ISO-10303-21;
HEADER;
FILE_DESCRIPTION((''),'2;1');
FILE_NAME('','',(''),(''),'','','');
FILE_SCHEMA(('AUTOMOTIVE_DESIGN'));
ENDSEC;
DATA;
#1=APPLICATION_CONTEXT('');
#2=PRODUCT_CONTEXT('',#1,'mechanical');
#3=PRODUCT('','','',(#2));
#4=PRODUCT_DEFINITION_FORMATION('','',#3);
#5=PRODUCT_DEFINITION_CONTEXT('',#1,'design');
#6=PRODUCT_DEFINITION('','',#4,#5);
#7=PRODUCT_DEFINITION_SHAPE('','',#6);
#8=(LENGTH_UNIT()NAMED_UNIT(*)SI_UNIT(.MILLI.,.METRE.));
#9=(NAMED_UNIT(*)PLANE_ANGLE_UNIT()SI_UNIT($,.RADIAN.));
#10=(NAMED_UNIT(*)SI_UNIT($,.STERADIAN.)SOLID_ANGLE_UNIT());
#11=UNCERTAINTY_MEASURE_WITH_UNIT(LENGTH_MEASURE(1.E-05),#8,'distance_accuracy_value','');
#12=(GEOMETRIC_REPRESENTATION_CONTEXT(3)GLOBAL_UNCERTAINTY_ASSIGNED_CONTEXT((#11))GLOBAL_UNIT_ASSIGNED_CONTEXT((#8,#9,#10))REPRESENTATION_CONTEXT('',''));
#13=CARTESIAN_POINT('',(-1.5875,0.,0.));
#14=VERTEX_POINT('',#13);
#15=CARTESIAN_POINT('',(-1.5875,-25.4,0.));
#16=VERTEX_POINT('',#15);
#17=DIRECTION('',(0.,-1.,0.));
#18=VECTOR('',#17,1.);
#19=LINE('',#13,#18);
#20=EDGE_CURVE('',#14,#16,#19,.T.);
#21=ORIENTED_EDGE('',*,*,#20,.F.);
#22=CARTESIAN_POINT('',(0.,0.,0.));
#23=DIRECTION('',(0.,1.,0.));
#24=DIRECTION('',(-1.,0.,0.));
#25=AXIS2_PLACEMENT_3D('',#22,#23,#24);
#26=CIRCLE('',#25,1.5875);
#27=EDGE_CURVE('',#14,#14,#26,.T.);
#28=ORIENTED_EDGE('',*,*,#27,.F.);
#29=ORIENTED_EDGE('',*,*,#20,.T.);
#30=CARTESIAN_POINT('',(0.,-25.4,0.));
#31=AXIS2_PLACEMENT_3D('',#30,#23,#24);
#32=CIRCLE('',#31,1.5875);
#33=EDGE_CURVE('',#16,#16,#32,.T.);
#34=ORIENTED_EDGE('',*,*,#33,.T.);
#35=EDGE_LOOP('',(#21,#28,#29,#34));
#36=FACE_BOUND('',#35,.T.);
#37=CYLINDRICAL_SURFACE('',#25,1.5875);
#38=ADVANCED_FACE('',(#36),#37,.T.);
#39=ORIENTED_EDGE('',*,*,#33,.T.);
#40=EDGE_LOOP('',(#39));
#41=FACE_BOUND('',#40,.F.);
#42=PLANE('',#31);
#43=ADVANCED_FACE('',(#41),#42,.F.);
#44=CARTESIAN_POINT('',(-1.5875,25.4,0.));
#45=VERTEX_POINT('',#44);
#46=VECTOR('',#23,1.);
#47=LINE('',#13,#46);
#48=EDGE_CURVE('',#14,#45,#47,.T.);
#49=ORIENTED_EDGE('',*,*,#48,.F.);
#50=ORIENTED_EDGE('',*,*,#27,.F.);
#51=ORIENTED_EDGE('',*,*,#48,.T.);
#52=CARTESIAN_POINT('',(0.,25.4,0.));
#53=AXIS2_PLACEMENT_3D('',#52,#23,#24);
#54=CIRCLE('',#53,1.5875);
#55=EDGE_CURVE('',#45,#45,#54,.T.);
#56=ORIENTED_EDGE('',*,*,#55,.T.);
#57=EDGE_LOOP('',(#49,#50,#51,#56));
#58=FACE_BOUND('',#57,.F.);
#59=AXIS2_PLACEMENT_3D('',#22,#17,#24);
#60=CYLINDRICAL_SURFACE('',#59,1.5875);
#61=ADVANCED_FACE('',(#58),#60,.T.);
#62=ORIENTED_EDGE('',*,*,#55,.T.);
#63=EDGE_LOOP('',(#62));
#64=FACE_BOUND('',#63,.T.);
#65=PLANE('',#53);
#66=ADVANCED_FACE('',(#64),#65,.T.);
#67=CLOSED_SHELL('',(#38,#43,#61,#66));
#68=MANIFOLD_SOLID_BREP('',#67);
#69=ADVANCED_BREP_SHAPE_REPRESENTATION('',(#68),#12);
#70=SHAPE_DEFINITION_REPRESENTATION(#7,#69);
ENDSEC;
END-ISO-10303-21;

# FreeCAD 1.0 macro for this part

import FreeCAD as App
import Part
import Sketcher
from FreeCAD import Vector
Q = App.Units.Quantity

doc = App.newDocument("Part")
body = doc.addObject("PartDesign::Body", "Body")

# Sketch on XZ plane
sketch1 = body.newObject("Sketcher::SketchObject", "Sketch")
sketch1.AttachmentSupport = (doc.getObject("XZ_Plane"), [""])
sketch1.MapMode = "FlatFace"
sketch1.addGeometry(Part.Circle(Vector(0, 0, 0), Vector(0, 0, 1), 1.6), False)
sketch1.addConstraint([
    Sketcher.Constraint("Coincident", 0, 3, -1, 1),
    Sketcher.Constraint("Diameter", 0, Q("0.125 in")),
])
pad1 = body.newObject("PartDesign::Pad", "Pad")
pad1.Profile = sketch1
pad1.Length = Q("2 in")
pad1.Midplane = True

doc.recompute()
